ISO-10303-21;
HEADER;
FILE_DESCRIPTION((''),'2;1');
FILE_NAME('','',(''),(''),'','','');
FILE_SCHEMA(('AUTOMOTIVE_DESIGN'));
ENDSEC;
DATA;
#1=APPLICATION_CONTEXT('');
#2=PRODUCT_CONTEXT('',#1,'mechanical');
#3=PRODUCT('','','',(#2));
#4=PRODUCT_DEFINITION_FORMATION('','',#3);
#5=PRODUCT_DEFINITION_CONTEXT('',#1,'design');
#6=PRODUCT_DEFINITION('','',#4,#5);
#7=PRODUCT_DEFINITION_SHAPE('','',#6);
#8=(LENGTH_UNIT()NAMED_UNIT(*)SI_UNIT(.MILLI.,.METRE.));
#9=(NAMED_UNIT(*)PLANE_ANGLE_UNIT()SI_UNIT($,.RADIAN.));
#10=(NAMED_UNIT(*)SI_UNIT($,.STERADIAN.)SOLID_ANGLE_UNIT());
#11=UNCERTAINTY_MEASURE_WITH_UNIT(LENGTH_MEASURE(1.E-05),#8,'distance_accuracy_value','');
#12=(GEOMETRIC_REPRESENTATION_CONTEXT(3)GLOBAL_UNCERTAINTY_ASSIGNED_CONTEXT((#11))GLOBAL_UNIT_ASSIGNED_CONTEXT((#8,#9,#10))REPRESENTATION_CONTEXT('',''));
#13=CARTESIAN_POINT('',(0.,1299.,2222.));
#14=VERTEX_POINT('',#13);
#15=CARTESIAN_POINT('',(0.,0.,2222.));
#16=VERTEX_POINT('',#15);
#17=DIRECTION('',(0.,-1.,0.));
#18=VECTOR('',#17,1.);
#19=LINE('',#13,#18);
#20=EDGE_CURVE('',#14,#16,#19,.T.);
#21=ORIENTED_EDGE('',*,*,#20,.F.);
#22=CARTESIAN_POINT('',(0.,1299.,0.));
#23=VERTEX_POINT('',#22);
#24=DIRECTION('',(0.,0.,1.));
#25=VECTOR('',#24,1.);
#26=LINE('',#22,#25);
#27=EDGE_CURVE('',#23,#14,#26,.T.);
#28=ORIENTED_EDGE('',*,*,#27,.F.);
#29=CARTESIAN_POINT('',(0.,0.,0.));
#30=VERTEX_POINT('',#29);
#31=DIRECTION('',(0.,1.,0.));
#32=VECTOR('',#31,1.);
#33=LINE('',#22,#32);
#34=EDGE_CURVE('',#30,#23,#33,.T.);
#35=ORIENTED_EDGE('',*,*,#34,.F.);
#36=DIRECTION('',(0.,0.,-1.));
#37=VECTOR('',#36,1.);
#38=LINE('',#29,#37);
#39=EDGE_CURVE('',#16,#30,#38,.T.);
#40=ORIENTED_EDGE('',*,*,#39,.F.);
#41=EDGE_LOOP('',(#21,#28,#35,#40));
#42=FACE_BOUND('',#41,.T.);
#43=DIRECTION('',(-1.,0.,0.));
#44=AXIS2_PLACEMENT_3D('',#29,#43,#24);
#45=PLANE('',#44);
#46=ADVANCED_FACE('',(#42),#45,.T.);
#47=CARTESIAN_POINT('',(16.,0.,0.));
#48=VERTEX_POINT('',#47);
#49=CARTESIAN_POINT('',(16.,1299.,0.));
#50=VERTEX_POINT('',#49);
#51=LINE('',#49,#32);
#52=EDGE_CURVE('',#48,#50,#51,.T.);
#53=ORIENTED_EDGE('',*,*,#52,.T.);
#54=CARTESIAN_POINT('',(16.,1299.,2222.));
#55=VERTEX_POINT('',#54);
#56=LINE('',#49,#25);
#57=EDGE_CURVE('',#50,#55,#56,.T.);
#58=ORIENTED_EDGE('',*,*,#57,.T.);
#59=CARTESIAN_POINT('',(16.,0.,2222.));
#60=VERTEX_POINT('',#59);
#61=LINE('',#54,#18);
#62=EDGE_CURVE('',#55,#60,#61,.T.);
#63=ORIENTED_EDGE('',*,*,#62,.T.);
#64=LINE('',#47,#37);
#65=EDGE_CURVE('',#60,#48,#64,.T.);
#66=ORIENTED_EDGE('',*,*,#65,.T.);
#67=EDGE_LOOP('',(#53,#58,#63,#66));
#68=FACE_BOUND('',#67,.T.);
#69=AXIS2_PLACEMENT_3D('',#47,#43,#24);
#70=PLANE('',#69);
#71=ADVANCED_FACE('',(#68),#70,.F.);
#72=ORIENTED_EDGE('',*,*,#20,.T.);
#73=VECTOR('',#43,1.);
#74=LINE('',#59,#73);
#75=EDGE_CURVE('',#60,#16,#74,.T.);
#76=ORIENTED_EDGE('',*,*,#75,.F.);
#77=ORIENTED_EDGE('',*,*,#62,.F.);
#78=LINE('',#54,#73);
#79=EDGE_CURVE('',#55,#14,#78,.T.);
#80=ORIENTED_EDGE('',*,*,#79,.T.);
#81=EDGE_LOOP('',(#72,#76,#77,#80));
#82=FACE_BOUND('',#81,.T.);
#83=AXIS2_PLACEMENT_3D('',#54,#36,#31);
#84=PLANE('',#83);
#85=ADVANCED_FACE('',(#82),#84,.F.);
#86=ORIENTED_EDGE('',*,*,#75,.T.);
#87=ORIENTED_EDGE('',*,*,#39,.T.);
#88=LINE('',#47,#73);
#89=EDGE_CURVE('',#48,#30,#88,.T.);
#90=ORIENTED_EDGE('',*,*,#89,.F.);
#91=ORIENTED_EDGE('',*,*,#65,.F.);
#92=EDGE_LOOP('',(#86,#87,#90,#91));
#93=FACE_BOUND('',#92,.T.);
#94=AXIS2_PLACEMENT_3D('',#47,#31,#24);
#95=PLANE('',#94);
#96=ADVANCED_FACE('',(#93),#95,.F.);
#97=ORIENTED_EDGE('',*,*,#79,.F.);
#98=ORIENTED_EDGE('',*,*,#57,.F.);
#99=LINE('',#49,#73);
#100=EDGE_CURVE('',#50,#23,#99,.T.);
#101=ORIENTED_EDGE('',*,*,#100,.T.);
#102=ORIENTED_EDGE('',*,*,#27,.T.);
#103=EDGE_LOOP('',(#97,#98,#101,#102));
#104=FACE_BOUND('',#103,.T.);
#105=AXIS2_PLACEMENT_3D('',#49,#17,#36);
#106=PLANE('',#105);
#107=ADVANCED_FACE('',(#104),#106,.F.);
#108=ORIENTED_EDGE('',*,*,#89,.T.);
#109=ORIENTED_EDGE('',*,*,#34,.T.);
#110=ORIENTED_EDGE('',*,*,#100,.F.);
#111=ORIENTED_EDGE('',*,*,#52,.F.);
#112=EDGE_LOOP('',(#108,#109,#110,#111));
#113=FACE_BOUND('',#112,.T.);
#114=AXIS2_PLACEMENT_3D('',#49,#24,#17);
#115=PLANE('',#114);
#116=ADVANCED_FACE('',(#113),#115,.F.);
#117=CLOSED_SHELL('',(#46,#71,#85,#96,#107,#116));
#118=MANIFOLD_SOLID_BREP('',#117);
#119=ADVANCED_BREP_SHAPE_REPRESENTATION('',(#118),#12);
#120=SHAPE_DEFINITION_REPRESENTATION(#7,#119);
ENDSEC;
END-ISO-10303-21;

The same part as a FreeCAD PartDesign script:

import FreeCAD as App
import Part
import Sketcher

V = App.Vector
Q = App.Units.Quantity

doc = App.newDocument("Part")
body = doc.addObject("PartDesign::Body", "Body")

sketch1 = body.newObject("Sketcher::SketchObject", "Sketch")
sketch1.AttachmentSupport = (doc.getObject("YZ_Plane"), [""])
sketch1.MapMode = "FlatFace"
sketch1.addGeometry(Part.LineSegment(V(1299, 2222, 0), V(0, 2222, 0)), False)
sketch1.addGeometry(Part.LineSegment(V(0, 2222, 0), V(0, 0, 0)), False)
sketch1.addGeometry(Part.LineSegment(V(0, 0, 0), V(1299, 0, 0)), False)
sketch1.addGeometry(Part.LineSegment(V(1299, 0, 0), V(1299, 2222, 0)), False)
sketch1.addConstraint(Sketcher.Constraint("Coincident", 0, 2, 1, 1))
sketch1.addConstraint(Sketcher.Constraint("Coincident", 1, 2, 2, 1))
sketch1.addConstraint(Sketcher.Constraint("Coincident", 2, 2, 3, 1))
sketch1.addConstraint(Sketcher.Constraint("Coincident", 3, 2, 0, 1))
sketch1.addConstraint(Sketcher.Constraint("Horizontal", 0))
sketch1.addConstraint(Sketcher.Constraint("Vertical", 1))
sketch1.addConstraint(Sketcher.Constraint("Horizontal", 2))
sketch1.addConstraint(Sketcher.Constraint("Vertical", 3))
sketch1.addConstraint(Sketcher.Constraint("Coincident", 1, 2, -1, 1))
sketch1.addConstraint(Sketcher.Constraint("DistanceX", 0, 2, 0, 1, Q("1299 mm")))
sketch1.addConstraint(Sketcher.Constraint("DistanceY", 1, 2, 1, 1, Q("2222 mm")))
pad1 = body.newObject("PartDesign::Pad", "Pad")
pad1.Profile = sketch1
pad1.Length = 16

doc.recompute()
